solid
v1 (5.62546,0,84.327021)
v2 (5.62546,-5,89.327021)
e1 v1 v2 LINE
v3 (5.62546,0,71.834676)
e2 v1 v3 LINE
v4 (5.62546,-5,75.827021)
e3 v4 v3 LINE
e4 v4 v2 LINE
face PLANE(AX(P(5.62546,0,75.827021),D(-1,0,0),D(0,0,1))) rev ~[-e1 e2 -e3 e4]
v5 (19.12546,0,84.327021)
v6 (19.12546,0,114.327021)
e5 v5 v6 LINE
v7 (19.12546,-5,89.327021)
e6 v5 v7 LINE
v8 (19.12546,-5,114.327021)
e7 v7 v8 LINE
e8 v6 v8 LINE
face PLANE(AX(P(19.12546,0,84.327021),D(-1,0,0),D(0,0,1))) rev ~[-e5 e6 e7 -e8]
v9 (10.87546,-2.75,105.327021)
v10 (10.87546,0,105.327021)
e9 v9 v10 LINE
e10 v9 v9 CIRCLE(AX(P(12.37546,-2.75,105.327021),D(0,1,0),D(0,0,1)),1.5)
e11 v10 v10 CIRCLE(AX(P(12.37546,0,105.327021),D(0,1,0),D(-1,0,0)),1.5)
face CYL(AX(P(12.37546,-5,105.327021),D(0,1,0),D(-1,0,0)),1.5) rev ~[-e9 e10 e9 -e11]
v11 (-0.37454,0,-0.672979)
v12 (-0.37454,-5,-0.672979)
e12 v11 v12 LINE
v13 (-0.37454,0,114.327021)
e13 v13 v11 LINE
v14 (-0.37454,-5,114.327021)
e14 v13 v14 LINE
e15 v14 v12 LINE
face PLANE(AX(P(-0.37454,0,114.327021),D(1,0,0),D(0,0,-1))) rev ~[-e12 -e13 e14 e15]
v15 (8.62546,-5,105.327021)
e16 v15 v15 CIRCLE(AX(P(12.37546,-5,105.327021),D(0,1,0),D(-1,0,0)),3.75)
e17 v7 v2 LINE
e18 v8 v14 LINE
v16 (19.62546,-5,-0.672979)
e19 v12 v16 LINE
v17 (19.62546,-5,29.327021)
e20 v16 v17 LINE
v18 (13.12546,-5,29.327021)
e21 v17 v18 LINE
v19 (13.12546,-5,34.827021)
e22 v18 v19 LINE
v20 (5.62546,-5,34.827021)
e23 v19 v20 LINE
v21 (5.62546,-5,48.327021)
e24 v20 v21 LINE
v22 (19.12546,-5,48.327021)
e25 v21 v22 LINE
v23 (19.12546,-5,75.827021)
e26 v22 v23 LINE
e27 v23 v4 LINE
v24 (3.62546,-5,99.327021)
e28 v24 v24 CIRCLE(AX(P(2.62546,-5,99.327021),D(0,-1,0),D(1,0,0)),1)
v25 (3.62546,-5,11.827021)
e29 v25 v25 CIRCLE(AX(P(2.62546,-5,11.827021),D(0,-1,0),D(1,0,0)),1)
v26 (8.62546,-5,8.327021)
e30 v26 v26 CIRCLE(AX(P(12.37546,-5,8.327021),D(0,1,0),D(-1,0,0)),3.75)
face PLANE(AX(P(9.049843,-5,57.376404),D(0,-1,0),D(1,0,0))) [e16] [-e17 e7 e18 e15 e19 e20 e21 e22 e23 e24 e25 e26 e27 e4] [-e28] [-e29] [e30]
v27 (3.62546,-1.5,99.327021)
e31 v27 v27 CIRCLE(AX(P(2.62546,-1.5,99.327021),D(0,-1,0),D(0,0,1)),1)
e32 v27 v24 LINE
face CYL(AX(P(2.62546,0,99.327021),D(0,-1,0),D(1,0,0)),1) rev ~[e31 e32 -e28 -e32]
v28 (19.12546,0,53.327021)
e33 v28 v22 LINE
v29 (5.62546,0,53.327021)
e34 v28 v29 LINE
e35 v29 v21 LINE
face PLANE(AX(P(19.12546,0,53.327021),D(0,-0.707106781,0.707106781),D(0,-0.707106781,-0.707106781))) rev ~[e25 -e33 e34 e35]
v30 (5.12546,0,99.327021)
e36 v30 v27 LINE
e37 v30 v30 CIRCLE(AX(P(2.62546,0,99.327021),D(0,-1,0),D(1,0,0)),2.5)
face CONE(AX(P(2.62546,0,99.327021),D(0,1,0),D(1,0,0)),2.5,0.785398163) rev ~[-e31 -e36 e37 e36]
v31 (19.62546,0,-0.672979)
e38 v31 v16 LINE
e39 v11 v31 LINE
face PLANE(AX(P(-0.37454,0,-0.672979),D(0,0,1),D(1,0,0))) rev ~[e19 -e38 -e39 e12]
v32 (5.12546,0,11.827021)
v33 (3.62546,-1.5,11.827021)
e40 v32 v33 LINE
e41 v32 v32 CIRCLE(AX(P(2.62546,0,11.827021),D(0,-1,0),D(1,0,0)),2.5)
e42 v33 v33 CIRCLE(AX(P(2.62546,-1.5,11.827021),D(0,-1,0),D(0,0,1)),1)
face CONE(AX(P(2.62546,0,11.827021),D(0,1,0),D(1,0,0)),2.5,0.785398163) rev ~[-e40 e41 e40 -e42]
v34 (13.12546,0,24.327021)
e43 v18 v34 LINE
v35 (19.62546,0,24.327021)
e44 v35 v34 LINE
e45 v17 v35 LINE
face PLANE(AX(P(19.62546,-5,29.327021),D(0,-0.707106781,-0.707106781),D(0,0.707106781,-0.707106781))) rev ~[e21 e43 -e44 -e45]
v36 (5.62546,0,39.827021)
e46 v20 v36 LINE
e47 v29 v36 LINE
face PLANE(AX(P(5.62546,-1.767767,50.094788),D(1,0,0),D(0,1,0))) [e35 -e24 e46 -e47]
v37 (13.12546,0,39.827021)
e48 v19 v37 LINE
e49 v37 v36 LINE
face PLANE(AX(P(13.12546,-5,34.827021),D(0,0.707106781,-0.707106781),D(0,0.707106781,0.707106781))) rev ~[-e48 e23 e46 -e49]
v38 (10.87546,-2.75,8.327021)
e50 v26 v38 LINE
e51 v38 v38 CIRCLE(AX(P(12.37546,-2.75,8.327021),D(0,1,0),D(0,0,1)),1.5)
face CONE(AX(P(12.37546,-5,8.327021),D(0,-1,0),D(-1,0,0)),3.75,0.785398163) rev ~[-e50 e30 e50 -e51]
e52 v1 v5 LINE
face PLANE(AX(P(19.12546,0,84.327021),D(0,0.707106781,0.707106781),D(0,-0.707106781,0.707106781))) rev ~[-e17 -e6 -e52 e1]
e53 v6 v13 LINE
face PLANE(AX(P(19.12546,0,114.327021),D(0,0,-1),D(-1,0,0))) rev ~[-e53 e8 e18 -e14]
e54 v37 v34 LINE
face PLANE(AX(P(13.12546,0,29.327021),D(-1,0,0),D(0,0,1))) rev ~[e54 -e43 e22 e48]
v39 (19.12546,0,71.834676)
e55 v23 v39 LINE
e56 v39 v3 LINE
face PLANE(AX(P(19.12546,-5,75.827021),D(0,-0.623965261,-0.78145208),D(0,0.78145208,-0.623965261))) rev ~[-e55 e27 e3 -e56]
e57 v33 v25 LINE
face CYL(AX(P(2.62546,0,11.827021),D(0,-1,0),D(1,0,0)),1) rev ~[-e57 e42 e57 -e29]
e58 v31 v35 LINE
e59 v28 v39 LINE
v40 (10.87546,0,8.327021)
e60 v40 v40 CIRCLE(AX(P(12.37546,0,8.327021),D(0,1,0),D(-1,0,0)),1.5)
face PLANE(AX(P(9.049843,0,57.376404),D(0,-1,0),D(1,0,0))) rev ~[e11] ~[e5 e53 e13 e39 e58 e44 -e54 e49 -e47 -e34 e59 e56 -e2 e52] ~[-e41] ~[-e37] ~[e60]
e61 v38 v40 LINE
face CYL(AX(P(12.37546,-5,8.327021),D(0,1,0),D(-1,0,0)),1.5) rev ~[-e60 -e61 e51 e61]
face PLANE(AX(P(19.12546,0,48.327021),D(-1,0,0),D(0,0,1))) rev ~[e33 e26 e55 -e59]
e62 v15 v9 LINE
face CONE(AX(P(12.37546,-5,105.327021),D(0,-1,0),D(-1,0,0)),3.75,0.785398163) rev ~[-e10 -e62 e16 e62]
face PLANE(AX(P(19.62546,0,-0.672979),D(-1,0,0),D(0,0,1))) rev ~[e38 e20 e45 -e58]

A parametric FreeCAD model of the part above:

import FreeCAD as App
import Part
import Sketcher
from FreeCAD import Vector


def add_polygon(sketch, points):
    """Adds a closed chain of lines whose ends are joined by coincident constraints."""
    first, n = sketch.GeometryCount, len(points)
    for a, b in zip(points, points[1:] + points[:1]):
        sketch.addGeometry(Part.LineSegment(App.Vector(*a, 0), App.Vector(*b, 0)), False)
    for i in range(n):
        sketch.addConstraint(Sketcher.Constraint("Coincident", first + i, 2, first + (i + 1) % n, 1))

doc = App.newDocument("Part")
body = doc.addObject("PartDesign::Body", "Body")

# Sketch on XZ plane
sketch1 = body.newObject("Sketcher::SketchObject", "Sketch")
sketch1.AttachmentSupport = (doc.getObject("XZ_Plane"), [""])
sketch1.MapMode = "FlatFace"
add_polygon(sketch1, [(19, 114), (0, 114), (0, -1), (20, -1), (20, 29), (13, 29), (13, 40), (6, 40), (6, 48), (19, 48), (19, 76), (6, 76), (6, 84), (19, 84)])  # lines 0-13
sketch1.addConstraint(Sketcher.Constraint("Horizontal", 0))
sketch1.addConstraint(Sketcher.Constraint("Vertical", 1))
sketch1.addConstraint(Sketcher.Constraint("Horizontal", 2))
sketch1.addConstraint(Sketcher.Constraint("Vertical", 3))
sketch1.addConstraint(Sketcher.Constraint("Horizontal", 4))
sketch1.addConstraint(Sketcher.Constraint("Vertical", 5))
sketch1.addConstraint(Sketcher.Constraint("Horizontal", 6))
sketch1.addConstraint(Sketcher.Constraint("Vertical", 7))
sketch1.addConstraint(Sketcher.Constraint("Horizontal", 8))
sketch1.addConstraint(Sketcher.Constraint("Vertical", 9))
sketch1.addConstraint(Sketcher.Constraint("Horizontal", 10))
sketch1.addConstraint(Sketcher.Constraint("Vertical", 11))
sketch1.addConstraint(Sketcher.Constraint("Horizontal", 12))
sketch1.addConstraint(Sketcher.Constraint("Vertical", 13))
sketch1.addConstraint(Sketcher.Constraint("Vertical", 7, 2, 10, 2))
sketch1.addConstraint(Sketcher.Constraint("Vertical", 9, 2, 12, 2))
sketch1.addConstraint(Sketcher.Constraint("Equal", 7, 11))
sketch1.addConstraint(Sketcher.Constraint("Equal", 3, 13))
sketch1.addConstraint(Sketcher.Constraint("DistanceX", 2, 1, 2, 2, 20.0))
sketch1.addConstraint(Sketcher.Constraint("DistanceY", 1, 2, 1, 1, 115.0))
sketch1.addConstraint(Sketcher.Constraint("DistanceY", 3, 1, 3, 2, 30.0))
sketch1.addConstraint(Sketcher.Constraint("DistanceX", 0, 2, 0, 1, 19.5))
sketch1.addConstraint(Sketcher.Constraint("DistanceX", 4, 2, 4, 1, 6.5))
sketch1.addConstraint(Sketcher.Constraint("DistanceX", 6, 2, 6, 1, 7.5))
sketch1.addConstraint(Sketcher.Constraint("DistanceY", 5, 1, 5, 2, 10.5))
sketch1.addConstraint(Sketcher.Constraint("DistanceY", 7, 1, 7, 2, 8.5))
sketch1.addConstraint(Sketcher.Constraint("DistanceX", 0, 2, -1, 1, 0.37454))
sketch1.addConstraint(Sketcher.Constraint("DistanceY", -1, 1, 0, 2, 114.327021))
pad1 = body.newObject("PartDesign::Pad", "Pad")
pad1.Profile = sketch1
pad1.Length = 5

# Sketch on YZ plane
sketch2 = body.newObject("Sketcher::SketchObject", "Sketch001")
sketch2.AttachmentSupport = (doc.getObject("YZ_Plane"), [""])
sketch2.MapMode = "FlatFace"
sketch2.AttachmentOffset = App.Placement(Vector(0, 0, 19.12546), App.Rotation())
add_polygon(sketch2, [(-5, 84.3), (0, 84.3), (-5, 89.3)])  # lines 0-2
add_polygon(sketch2, [(0, 75.8), (-5, 75.8), (0, 71.8)])  # lines 3-5
add_polygon(sketch2, [(0, 53.3), (-5, 48.3), (0, 48.3)])  # lines 6-8
sketch2.addConstraint(Sketcher.Constraint("Horizontal", 0))
sketch2.addConstraint(Sketcher.Constraint("Vertical", 2))
sketch2.addConstraint(Sketcher.Constraint("Horizontal", 3))
sketch2.addConstraint(Sketcher.Constraint("Vertical", 5))
sketch2.addConstraint(Sketcher.Constraint("Horizontal", 7))
sketch2.addConstraint(Sketcher.Constraint("Vertical", 8))
sketch2.addConstraint(Sketcher.Constraint("PointOnObject", 0, 2, -2))
sketch2.addConstraint(Sketcher.Constraint("PointOnObject", 4, 2, -2))
sketch2.addConstraint(Sketcher.Constraint("PointOnObject", 7, 2, -2))
sketch2.addConstraint(Sketcher.Constraint("Perpendicular", 1, 6))
sketch2.addConstraint(Sketcher.Constraint("Vertical", 2, 2, 3, 2))
sketch2.addConstraint(Sketcher.Constraint("Vertical", 3, 2, 6, 2))
sketch2.addConstraint(Sketcher.Constraint("Equal", 7, 2))
sketch2.addConstraint(Sketcher.Constraint("DistanceX", 0, 1, 0, 2, 5.0))
sketch2.addConstraint(Sketcher.Constraint("DistanceY", 6, 2, 2, 2, 36.0))
sketch2.addConstraint(Sketcher.Constraint("DistanceY", 3, 2, 2, 2, 8.5))
sketch2.addConstraint(Sketcher.Constraint("DistanceY", 5, 1, 5, 2, 3.992345))
sketch2.addConstraint(Sketcher.Constraint("DistanceY", -1, 1, 0, 2, 84.327021))
pocket1 = body.newObject("PartDesign::Pocket", "Pocket")
pocket1.Profile = sketch2
pocket1.Length = 13.5

# Sketch on YZ plane
sketch3 = body.newObject("Sketcher::SketchObject", "Sketch002")
sketch3.AttachmentSupport = (doc.getObject("YZ_Plane"), [""])
sketch3.MapMode = "FlatFace"
sketch3.AttachmentOffset = App.Placement(Vector(0, 0, 13.12546), App.Rotation())
add_polygon(sketch3, [(-5, 35), (0, 40), (-5, 40)])  # lines 0-2
sketch3.addConstraint(Sketcher.Constraint("Horizontal", 1))
sketch3.addConstraint(Sketcher.Constraint("Vertical", 2))
sketch3.addConstraint(Sketcher.Constraint("PointOnObject", 0, 2, -2))
sketch3.addConstraint(Sketcher.Constraint("Equal", 1, 2))
sketch3.addConstraint(Sketcher.Constraint("DistanceX", 1, 2, 1, 1, 5.0))
sketch3.addConstraint(Sketcher.Constraint("DistanceY", -1, 1, 0, 2, 39.827021))
pocket2 = body.newObject("PartDesign::Pocket", "Pocket001")
pocket2.Profile = sketch3
pocket2.Length = 7.5

# Sketch on YZ plane
sketch4 = body.newObject("Sketcher::SketchObject", "Sketch003")
sketch4.AttachmentSupport = (doc.getObject("YZ_Plane"), [""])
sketch4.MapMode = "FlatFace"
sketch4.AttachmentOffset = App.Placement(Vector(0, 0, 19.62546), App.Rotation())
add_polygon(sketch4, [(0, 24), (0, 29), (-5, 29)])  # lines 0-2
sketch4.addConstraint(Sketcher.Constraint("Vertical", 0))
sketch4.addConstraint(Sketcher.Constraint("Horizontal", 1))
sketch4.addConstraint(Sketcher.Constraint("PointOnObject", 0, 2, -2))
sketch4.addConstraint(Sketcher.Constraint("Equal", 1, 0))
sketch4.addConstraint(Sketcher.Constraint("DistanceX", 1, 2, 1, 1, 5.0))
sketch4.addConstraint(Sketcher.Constraint("DistanceY", -1, 1, 0, 2, 29.327021))
pocket3 = body.newObject("PartDesign::Pocket", "Pocket002")
pocket3.Profile = sketch4
pocket3.Length = 6.5

# Sketch on XZ plane
sketch5 = body.newObject("Sketcher::SketchObject", "Sketch004")
sketch5.AttachmentSupport = (doc.getObject("XZ_Plane"), [""])
sketch5.MapMode = "FlatFace"
sketch5.AttachmentOffset = App.Placement(Vector(0, 0, 5), App.Rotation())
sketch5.addGeometry(Part.Circle(Vector(12.4, 105.3, 0), Vector(0, 0, 1), 1.5), False)
sketch5.addGeometry(Part.Circle(Vector(12.4, 8.3, 0), Vector(0, 0, 1), 1.5), False)
sketch5.addConstraint(Sketcher.Constraint("Equal", 0, 1))
sketch5.addConstraint(Sketcher.Constraint("Vertical", 0, 3, 1, 3))
sketch5.addConstraint(Sketcher.Constraint("Diameter", 0, 3.0))
sketch5.addConstraint(Sketcher.Constraint("DistanceY", 1, 3, 0, 3, 97.0))
sketch5.addConstraint(Sketcher.Constraint("DistanceX", -1, 1, 0, 3, 12.37546))
sketch5.addConstraint(Sketcher.Constraint("DistanceY", -1, 1, 0, 3, 105.327021))
doc.recompute()
hole = body.newObject("PartDesign::Hole", "Hole")
hole.Profile = sketch5
hole.ThreadType = "None"
hole.Diameter = 3
hole.DepthType = "ThroughAll"
hole.HoleCutType = "Countersink"
hole.HoleCutDiameter = 7.5
hole.HoleCutCountersinkAngle = 90

# Sketch on XZ plane
sketch6 = body.newObject("Sketcher::SketchObject", "Sketch005")
sketch6.AttachmentSupport = (doc.getObject("XZ_Plane"), [""])
sketch6.MapMode = "FlatFace"
sketch6.addGeometry(Part.Circle(Vector(2.6, 11.8, 0), Vector(0, 0, 1), 1), False)
sketch6.addGeometry(Part.Circle(Vector(2.6, 99.3, 0), Vector(0, 0, 1), 1), False)
sketch6.addConstraint(Sketcher.Constraint("Equal", 0, 1))
sketch6.addConstraint(Sketcher.Constraint("Vertical", 0, 3, 1, 3))
sketch6.addConstraint(Sketcher.Constraint("Diameter", 0, 2.0))
sketch6.addConstraint(Sketcher.Constraint("DistanceY", 0, 3, 1, 3, 87.5))
sketch6.addConstraint(Sketcher.Constraint("DistanceX", -1, 1, 0, 3, 2.62546))
sketch6.addConstraint(Sketcher.Constraint("DistanceY", -1, 1, 0, 3, 11.827021))
doc.recompute()
hole2 = body.newObject("PartDesign::Hole", "Hole001")
hole2.Profile = sketch6
hole2.ThreadType = "None"
hole2.Diameter = 2
hole2.DepthType = "ThroughAll"
hole2.HoleCutType = "Countersink"
hole2.HoleCutDiameter = 5
hole2.HoleCutCountersinkAngle = 90
hole2.Reversed = True

doc.recompute()
